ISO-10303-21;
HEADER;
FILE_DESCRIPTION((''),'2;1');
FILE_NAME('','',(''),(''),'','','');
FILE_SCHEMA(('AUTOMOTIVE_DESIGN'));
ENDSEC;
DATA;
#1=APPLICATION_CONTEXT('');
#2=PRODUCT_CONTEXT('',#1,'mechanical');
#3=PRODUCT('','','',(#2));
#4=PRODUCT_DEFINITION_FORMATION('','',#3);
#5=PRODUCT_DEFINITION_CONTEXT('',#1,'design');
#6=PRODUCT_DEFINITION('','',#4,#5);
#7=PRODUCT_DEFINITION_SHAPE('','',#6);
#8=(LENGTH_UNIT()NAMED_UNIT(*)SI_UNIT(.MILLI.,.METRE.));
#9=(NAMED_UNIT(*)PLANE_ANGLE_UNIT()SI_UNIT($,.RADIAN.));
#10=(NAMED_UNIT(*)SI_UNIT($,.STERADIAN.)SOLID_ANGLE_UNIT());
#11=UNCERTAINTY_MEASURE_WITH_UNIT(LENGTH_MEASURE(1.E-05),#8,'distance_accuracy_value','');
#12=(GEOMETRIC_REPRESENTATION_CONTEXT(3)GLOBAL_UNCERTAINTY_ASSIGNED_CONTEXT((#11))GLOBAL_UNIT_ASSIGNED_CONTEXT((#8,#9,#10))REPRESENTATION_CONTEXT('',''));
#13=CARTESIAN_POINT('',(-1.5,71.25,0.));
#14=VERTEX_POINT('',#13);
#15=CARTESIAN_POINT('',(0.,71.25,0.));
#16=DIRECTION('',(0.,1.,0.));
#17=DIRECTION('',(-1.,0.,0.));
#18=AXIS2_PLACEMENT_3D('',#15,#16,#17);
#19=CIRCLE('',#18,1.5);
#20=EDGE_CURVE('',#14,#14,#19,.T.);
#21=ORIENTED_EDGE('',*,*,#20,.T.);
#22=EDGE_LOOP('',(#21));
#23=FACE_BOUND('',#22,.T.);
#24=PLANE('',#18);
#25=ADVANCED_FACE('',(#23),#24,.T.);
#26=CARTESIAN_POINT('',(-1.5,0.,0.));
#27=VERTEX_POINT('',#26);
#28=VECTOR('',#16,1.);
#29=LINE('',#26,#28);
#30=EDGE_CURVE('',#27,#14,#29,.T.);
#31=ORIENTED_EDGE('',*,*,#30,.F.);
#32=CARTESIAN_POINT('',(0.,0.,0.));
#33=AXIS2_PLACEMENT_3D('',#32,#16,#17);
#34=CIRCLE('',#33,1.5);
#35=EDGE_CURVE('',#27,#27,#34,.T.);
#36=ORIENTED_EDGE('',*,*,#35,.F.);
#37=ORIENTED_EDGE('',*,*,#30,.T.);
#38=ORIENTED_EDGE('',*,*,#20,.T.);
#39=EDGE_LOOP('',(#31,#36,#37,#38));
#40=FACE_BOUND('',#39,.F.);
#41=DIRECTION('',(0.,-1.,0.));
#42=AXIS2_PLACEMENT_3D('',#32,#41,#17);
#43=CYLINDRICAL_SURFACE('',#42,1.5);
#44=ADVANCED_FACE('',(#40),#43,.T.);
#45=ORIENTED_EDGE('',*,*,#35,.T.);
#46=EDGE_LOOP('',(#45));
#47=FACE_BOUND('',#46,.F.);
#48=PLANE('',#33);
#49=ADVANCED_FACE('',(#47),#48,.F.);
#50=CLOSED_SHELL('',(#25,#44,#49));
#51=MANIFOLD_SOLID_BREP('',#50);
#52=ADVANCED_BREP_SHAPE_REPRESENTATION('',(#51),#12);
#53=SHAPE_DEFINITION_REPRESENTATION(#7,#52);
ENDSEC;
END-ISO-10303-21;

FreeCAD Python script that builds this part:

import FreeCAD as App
import Part
import Sketcher

V = App.Vector

doc = App.newDocument("Part")
params = doc.addObject("Spreadsheet::Sheet", "Params")
for row, (alias, value) in enumerate([
    ("sketch1_diameter", "3 mm"),
    ("pad1_length", "71.25 mm"),
], start=1):
    params.set(f"A{row}", alias)
    params.set(f"B{row}", "=" + value)
    params.setAlias(f"B{row}", alias)

body = doc.addObject("PartDesign::Body", "Body")

# Sketch on XZ plane
sketch1 = body.newObject("Sketcher::SketchObject", "Sketch")
sketch1.AttachmentSupport = (doc.getObject("XZ_Plane"), [""])
sketch1.MapMode = "FlatFace"
sketch1.addGeometry(Part.Circle(V(0, 0, 0), V(0, 0, 1), 1.5), False)
sketch1.addConstraint(Sketcher.Constraint("Coincident", 0, 3, -1, 1))
sketch1.addConstraint(Sketcher.Constraint("Diameter", 0, 3.0))
sketch1.setExpression("Constraints[1]", "Params.sketch1_diameter")
pad1 = body.newObject("PartDesign::Pad", "Pad")
pad1.Profile = sketch1
pad1.setExpression("Length", "Params.pad1_length")
pad1.Reversed = True

doc.recompute()
